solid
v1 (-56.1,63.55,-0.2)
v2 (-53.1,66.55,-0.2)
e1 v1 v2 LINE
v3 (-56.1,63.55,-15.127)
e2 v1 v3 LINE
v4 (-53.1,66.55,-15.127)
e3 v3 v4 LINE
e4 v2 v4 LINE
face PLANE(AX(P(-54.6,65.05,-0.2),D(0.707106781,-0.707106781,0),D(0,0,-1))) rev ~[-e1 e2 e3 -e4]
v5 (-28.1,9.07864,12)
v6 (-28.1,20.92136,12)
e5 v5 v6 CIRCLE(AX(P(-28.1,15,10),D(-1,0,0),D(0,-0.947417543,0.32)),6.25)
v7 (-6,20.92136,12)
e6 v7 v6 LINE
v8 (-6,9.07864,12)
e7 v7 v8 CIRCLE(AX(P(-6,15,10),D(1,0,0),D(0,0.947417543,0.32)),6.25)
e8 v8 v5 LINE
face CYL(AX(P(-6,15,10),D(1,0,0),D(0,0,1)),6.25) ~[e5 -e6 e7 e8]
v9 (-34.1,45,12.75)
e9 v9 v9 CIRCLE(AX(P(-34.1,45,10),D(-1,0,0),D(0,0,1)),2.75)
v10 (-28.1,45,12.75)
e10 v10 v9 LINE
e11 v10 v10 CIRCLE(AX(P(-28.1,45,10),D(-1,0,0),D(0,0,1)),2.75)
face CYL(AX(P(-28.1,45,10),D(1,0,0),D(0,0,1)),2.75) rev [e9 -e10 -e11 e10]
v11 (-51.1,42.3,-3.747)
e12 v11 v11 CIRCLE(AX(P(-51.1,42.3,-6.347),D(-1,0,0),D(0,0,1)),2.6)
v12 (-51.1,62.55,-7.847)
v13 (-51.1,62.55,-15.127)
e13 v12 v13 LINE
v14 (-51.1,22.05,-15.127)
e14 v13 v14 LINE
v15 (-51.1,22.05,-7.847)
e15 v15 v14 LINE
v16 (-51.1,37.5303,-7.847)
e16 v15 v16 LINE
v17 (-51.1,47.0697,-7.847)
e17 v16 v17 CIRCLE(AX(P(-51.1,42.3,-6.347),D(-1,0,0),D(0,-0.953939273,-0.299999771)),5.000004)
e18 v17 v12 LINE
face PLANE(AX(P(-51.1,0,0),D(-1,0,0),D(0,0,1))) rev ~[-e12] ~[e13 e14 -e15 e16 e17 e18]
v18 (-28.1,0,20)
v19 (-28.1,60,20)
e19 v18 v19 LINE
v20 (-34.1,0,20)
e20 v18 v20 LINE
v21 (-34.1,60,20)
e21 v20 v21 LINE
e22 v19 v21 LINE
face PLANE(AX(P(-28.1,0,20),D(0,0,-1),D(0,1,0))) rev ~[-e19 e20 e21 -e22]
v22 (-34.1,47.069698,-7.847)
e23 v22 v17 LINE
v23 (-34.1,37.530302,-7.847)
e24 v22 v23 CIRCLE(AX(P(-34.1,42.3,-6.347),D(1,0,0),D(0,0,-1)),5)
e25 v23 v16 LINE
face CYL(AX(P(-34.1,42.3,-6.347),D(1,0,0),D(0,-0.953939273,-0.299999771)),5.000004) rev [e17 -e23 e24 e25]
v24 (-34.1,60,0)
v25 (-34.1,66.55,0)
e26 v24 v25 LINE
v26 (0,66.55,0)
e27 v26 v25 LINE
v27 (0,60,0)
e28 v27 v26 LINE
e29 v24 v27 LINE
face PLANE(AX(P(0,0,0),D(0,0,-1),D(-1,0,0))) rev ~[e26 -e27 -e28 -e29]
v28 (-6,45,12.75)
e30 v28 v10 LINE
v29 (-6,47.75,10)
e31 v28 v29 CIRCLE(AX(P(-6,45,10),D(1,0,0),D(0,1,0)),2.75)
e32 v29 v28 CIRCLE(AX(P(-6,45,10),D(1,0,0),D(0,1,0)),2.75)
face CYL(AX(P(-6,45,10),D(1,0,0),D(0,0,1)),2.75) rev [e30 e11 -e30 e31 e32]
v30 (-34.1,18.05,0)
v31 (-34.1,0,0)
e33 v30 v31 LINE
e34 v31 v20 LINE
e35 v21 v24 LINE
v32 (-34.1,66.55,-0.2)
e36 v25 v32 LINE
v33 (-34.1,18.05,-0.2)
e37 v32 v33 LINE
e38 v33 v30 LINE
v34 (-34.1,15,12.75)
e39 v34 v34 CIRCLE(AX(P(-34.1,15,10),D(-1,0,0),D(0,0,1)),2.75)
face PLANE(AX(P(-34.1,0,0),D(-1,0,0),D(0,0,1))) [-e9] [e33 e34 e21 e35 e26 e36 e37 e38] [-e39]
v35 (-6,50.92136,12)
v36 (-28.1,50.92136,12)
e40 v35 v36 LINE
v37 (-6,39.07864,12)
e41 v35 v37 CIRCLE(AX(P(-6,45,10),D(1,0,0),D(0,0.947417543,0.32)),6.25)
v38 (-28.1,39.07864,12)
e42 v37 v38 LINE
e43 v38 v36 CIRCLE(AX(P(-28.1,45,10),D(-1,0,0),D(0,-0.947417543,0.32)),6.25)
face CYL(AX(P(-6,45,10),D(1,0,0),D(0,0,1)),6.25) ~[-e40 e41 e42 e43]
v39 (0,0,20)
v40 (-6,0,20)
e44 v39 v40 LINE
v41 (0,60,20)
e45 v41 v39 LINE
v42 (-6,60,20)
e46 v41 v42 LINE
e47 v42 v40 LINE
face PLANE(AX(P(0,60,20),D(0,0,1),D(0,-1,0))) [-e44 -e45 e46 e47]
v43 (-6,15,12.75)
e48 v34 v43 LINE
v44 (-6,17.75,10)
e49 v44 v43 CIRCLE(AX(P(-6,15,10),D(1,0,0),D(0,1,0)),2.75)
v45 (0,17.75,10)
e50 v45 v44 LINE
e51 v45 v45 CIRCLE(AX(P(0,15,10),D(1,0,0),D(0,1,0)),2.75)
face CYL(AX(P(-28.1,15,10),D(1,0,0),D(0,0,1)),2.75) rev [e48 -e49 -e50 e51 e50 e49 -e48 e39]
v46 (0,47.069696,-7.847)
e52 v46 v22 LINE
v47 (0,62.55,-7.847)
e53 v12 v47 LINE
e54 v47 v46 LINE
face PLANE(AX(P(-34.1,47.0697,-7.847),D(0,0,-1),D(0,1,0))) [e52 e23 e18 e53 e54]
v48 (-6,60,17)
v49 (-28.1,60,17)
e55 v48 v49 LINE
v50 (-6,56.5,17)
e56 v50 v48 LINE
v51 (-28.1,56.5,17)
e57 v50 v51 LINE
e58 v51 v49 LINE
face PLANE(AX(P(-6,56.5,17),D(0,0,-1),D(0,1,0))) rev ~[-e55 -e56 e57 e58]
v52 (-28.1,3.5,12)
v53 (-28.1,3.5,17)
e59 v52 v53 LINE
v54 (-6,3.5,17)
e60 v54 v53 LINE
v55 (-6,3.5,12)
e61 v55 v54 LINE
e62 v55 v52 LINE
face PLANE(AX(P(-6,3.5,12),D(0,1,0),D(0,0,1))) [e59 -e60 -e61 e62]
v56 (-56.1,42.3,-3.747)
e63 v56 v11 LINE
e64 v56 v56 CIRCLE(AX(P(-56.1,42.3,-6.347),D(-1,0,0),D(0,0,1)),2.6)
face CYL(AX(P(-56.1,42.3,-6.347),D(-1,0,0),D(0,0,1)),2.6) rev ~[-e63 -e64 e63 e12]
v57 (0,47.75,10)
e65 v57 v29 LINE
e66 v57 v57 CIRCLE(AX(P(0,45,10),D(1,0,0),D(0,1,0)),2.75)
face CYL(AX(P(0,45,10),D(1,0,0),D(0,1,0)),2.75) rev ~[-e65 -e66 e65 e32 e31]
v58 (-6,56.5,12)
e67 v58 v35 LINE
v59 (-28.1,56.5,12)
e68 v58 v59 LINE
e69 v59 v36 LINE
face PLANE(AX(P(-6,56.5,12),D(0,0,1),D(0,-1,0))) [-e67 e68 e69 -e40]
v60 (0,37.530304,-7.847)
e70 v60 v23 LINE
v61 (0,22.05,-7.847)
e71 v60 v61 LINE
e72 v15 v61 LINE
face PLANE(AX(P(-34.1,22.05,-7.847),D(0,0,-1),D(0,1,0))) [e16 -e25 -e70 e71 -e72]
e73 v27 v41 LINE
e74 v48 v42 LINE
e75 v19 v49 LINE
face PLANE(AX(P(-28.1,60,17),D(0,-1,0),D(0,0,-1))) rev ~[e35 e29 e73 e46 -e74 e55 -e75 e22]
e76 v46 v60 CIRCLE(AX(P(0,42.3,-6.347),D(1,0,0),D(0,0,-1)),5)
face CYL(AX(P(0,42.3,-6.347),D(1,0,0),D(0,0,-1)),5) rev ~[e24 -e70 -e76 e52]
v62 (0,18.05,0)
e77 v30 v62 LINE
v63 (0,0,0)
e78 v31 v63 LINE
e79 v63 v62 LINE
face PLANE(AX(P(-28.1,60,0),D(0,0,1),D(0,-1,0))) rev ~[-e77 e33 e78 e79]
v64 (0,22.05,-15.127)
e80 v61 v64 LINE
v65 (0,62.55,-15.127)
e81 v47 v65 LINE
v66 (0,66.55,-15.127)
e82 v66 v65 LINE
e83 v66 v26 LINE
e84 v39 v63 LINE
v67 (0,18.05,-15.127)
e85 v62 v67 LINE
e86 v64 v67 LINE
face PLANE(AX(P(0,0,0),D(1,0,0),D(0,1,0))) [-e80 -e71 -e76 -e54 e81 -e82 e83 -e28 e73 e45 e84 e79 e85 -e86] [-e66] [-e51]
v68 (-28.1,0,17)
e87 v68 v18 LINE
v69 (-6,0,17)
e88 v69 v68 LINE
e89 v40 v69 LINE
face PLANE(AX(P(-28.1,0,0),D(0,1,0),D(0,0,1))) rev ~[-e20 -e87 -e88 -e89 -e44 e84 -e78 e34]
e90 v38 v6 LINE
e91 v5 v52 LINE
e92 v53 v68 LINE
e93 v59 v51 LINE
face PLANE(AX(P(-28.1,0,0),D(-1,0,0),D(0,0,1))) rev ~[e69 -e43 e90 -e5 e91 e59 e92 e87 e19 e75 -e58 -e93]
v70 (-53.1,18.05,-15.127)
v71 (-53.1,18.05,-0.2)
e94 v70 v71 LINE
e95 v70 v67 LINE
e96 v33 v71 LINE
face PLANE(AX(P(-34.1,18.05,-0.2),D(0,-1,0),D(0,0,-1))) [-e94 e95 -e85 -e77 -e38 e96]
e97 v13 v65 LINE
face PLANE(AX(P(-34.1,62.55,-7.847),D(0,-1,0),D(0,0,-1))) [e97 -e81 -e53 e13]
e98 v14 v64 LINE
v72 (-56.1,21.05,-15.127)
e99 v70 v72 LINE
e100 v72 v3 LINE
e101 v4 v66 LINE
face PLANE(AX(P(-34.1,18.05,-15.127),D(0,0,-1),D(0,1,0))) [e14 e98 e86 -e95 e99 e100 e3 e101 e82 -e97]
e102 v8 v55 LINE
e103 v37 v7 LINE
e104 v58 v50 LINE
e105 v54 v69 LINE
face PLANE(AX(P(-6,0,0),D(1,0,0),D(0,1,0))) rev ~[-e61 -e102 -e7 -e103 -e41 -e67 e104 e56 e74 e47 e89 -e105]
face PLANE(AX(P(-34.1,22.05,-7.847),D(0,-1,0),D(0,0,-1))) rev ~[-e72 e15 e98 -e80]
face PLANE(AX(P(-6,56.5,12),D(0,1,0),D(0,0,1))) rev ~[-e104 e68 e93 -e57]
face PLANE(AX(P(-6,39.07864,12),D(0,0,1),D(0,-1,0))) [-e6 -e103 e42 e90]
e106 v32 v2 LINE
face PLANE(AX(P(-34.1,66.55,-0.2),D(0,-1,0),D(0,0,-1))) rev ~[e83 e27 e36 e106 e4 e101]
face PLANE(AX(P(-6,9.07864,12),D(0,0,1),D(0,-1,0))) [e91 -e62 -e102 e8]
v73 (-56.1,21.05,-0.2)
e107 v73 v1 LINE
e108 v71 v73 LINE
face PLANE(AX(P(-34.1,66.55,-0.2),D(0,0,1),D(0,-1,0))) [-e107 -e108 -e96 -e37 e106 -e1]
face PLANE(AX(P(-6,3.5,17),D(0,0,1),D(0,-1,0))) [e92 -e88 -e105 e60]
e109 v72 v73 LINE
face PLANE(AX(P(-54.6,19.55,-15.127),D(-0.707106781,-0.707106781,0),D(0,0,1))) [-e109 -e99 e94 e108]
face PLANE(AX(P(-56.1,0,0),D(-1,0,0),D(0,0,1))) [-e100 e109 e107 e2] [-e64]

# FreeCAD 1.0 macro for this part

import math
import FreeCAD as App
import Part
import Sketcher
from FreeCAD import Vector
Q = App.Units.Quantity


def edges_at(feature, points):
    """Names of the edges that pass closest to the given points."""
    edges = feature.Shape.Edges
    near = lambda p: min(range(len(edges)), key=lambda i: edges[i].distToShape(Part.Vertex(*p))[0])
    return sorted({f"Edge{near(p) + 1}" for p in points})

doc = App.newDocument("Part")
body = doc.addObject("PartDesign::Body", "Body")

sketch1 = body.newObject("Sketcher::SketchObject", "Sketch")
sketch1.AttachmentSupport = (doc.getObject("YZ_Plane"), [""])
sketch1.MapMode = "FlatFace"
sketch1.addGeometry([
    Part.LineSegment(Vector(0, 20, 0), Vector(0, 0, 0)),
    Part.LineSegment(Vector(0, 0, 0), Vector(60, 0, 0)),
    Part.LineSegment(Vector(60, 0, 0), Vector(60, 20, 0)),
    Part.LineSegment(Vector(60, 20, 0), Vector(0, 20, 0)),
    Part.Circle(Vector(15, 10, 0), Vector(0, 0, 1), 2.8),
    Part.Circle(Vector(45, 10, 0), Vector(0, 0, 1), 2.8),
], False)
sketch1.addConstraint([
    Sketcher.Constraint("Coincident", 0, 2, 1, 1),
    Sketcher.Constraint("Coincident", 1, 2, 2, 1),
    Sketcher.Constraint("Coincident", 2, 2, 3, 1),
    Sketcher.Constraint("Coincident", 3, 2, 0, 1),
    Sketcher.Constraint("Vertical", 0),
    Sketcher.Constraint("Horizontal", 1),
    Sketcher.Constraint("Vertical", 2),
    Sketcher.Constraint("Horizontal", 3),
    Sketcher.Constraint("Coincident", 0, 2, -1, 1),
    Sketcher.Constraint("Equal", 4, 5),
    Sketcher.Constraint("Horizontal", 4, 3, 5, 3),
    Sketcher.Constraint("Diameter", 4, Q("5.5 mm")),
    Sketcher.Constraint("DistanceX", 1, 1, 1, 2, Q("60 mm")),
    Sketcher.Constraint("DistanceY", 0, 2, 0, 1, Q("20 mm")),
    Sketcher.Constraint("DistanceX", -1, 1, 4, 3, Q("15 mm")),
    Sketcher.Constraint("DistanceY", -1, 1, 4, 3, Q("10 mm")),
    Sketcher.Constraint("DistanceX", -1, 1, 5, 3, Q("45 mm")),
])
pad1 = body.newObject("PartDesign::Pad", "Pad")
pad1.Profile = sketch1
pad1.Length = 6
pad1.Reversed = True

sketch2 = body.newObject("Sketcher::SketchObject", "Sketch001")
sketch2.AttachmentSupport = (doc.getObject("YZ_Plane"), [""])
sketch2.MapMode = "FlatFace"
sketch2.AttachmentOffset = App.Placement(Vector(0, 0, -6), App.Rotation())
sketch2.addGeometry([
    Part.LineSegment(Vector(50.9, 12, 0), Vector(56.5, 12, 0)),
    Part.LineSegment(Vector(56.5, 12, 0), Vector(56.5, 17, 0)),
    Part.LineSegment(Vector(56.5, 17, 0), Vector(60, 17, 0)),
    Part.LineSegment(Vector(60, 17, 0), Vector(60, 0, 0)),
    Part.LineSegment(Vector(60, 0, 0), Vector(0, 0, 0)),
    Part.LineSegment(Vector(0, 0, 0), Vector(0, 17, 0)),
    Part.LineSegment(Vector(0, 17, 0), Vector(3.5, 17, 0)),
    Part.LineSegment(Vector(3.5, 17, 0), Vector(3.5, 12, 0)),
    Part.LineSegment(Vector(3.5, 12, 0), Vector(9.1, 12, 0)),
    Part.ArcOfCircle(Part.Circle(Vector(15, 10, 0), Vector(0, 0, 1), 6.2), math.radians(19), math.radians(161)),
    Part.LineSegment(Vector(20.9, 12, 0), Vector(39.1, 12, 0)),
    Part.ArcOfCircle(Part.Circle(Vector(45, 10, 0), Vector(0, 0, 1), 6.2), math.radians(19), math.radians(161)),
    Part.Circle(Vector(45, 10, 0), Vector(0, 0, 1), 2.8),
    Part.Circle(Vector(15, 10, 0), Vector(0, 0, 1), 2.8),
], False)
sketch2.addConstraint([
    Sketcher.Constraint("Coincident", 0, 2, 1, 1),
    Sketcher.Constraint("Coincident", 1, 2, 2, 1),
    Sketcher.Constraint("Coincident", 2, 2, 3, 1),
    Sketcher.Constraint("Coincident", 3, 2, 4, 1),
    Sketcher.Constraint("Coincident", 4, 2, 5, 1),
    Sketcher.Constraint("Coincident", 5, 2, 6, 1),
    Sketcher.Constraint("Coincident", 6, 2, 7, 1),
    Sketcher.Constraint("Coincident", 7, 2, 8, 1),
    Sketcher.Constraint("Coincident", 8, 2, 9, 2),
    Sketcher.Constraint("Coincident", 9, 1, 10, 1),
    Sketcher.Constraint("Coincident", 10, 2, 11, 2),
    Sketcher.Constraint("Coincident", 11, 1, 0, 1),
    Sketcher.Constraint("Horizontal", 0),
    Sketcher.Constraint("Vertical", 1),
    Sketcher.Constraint("Horizontal", 2),
    Sketcher.Constraint("Vertical", 3),
    Sketcher.Constraint("Horizontal", 4),
    Sketcher.Constraint("Vertical", 5),
    Sketcher.Constraint("Horizontal", 6),
    Sketcher.Constraint("Vertical", 7),
    Sketcher.Constraint("Horizontal", 8),
    Sketcher.Constraint("Horizontal", 10),
    Sketcher.Constraint("Coincident", 4, 2, -1, 1),
    Sketcher.Constraint("Coincident", 12, 3, 11, 3),
    Sketcher.Constraint("Coincident", 13, 3, 9, 3),
    Sketcher.Constraint("Equal", 9, 11),
    Sketcher.Constraint("Equal", 12, 13),
    Sketcher.Constraint("Horizontal", 9, 3, 11, 3),
    Sketcher.Constraint("Horizontal", 2, 2, 5, 2),
    Sketcher.Constraint("Horizontal", 0, 2, 7, 2),
    Sketcher.Constraint("Horizontal", 8, 2, 9, 1),
    Sketcher.Constraint("Equal", 2, 6),
    Sketcher.Constraint("Equal", 0, 8),
    Sketcher.Constraint("DistanceX", 2, 1, 2, 2, Q("3.5 mm")),
    Sketcher.Constraint("Diameter", 12, Q("5.5 mm")),
    Sketcher.Constraint("DistanceX", 4, 2, 4, 1, Q("60 mm")),
    Sketcher.Constraint("DistanceY", 1, 1, 1, 2, Q("5 mm")),
    Sketcher.Constraint("DistanceY", 3, 2, 3, 1, Q("17 mm")),
    Sketcher.Constraint("Radius", 9, Q("6.25 mm")),
    Sketcher.Constraint("DistanceX", -1, 1, 9, 3, Q("15 mm")),
    Sketcher.Constraint("DistanceY", -1, 1, 9, 3, Q("10 mm")),
])
pad2 = body.newObject("PartDesign::Pad", "Pad001")
pad2.Profile = sketch2
pad2.Length = 22.1
pad2.Reversed = True

sketch3 = body.newObject("Sketcher::SketchObject", "Sketch002")
sketch3.AttachmentSupport = (doc.getObject("YZ_Plane"), [""])
sketch3.MapMode = "FlatFace"
sketch3.AttachmentOffset = App.Placement(Vector(0, 0, -28.1), App.Rotation())
sketch3.addGeometry([
    Part.LineSegment(Vector(0, 0, 0), Vector(0, 20, 0)),
    Part.LineSegment(Vector(0, 20, 0), Vector(60, 20, 0)),
    Part.LineSegment(Vector(60, 20, 0), Vector(60, 0, 0)),
    Part.LineSegment(Vector(60, 0, 0), Vector(0, 0, 0)),
    Part.Circle(Vector(15, 10, 0), Vector(0, 0, 1), 2.8),
    Part.Circle(Vector(45, 10, 0), Vector(0, 0, 1), 2.8),
], False)
sketch3.addConstraint([
    Sketcher.Constraint("Coincident", 0, 2, 1, 1),
    Sketcher.Constraint("Coincident", 1, 2, 2, 1),
    Sketcher.Constraint("Coincident", 2, 2, 3, 1),
    Sketcher.Constraint("Coincident", 3, 2, 0, 1),
    Sketcher.Constraint("Vertical", 0),
    Sketcher.Constraint("Horizontal", 1),
    Sketcher.Constraint("Vertical", 2),
    Sketcher.Constraint("Horizontal", 3),
    Sketcher.Constraint("Coincident", 3, 2, -1, 1),
    Sketcher.Constraint("Equal", 4, 5),
    Sketcher.Constraint("Horizontal", 4, 3, 5, 3),
    Sketcher.Constraint("Diameter", 4, Q("5.5 mm")),
    Sketcher.Constraint("DistanceX", 1, 1, 1, 2, Q("60 mm")),
    Sketcher.Constraint("DistanceY", 0, 1, 0, 2, Q("20 mm")),
    Sketcher.Constraint("DistanceX", -1, 1, 4, 3, Q("15 mm")),
    Sketcher.Constraint("DistanceY", -1, 1, 4, 3, Q("10 mm")),
    Sketcher.Constraint("DistanceX", -1, 1, 5, 3, Q("45 mm")),
])
pad3 = body.newObject("PartDesign::Pad", "Pad002")
pad3.Profile = sketch3
pad3.Length = 6
pad3.Reversed = True

sketch4 = body.newObject("Sketcher::SketchObject", "Sketch003")
sketch4.AttachmentSupport = (doc.getObject("XY_Plane"), [""])
sketch4.MapMode = "FlatFace"
sketch4.addGeometry([
    Part.LineSegment(Vector(-34, 67, 0), Vector(0, 67, 0)),
    Part.LineSegment(Vector(0, 67, 0), Vector(0, 18, 0)),
    Part.LineSegment(Vector(0, 18, 0), Vector(-34, 18, 0)),
    Part.LineSegment(Vector(-34, 18, 0), Vector(-34, 67, 0)),
], False)
sketch4.addConstraint([
    Sketcher.Constraint("Coincident", 0, 2, 1, 1),
    Sketcher.Constraint("Coincident", 1, 2, 2, 1),
    Sketcher.Constraint("Coincident", 2, 2, 3, 1),
    Sketcher.Constraint("Coincident", 3, 2, 0, 1),
    Sketcher.Constraint("Horizontal", 0),
    Sketcher.Constraint("Vertical", 1),
    Sketcher.Constraint("Horizontal", 2),
    Sketcher.Constraint("Vertical", 3),
    Sketcher.Constraint("PointOnObject", 0, 2, -2),
    Sketcher.Constraint("DistanceX", 0, 1, 0, 2, Q("34.1 mm")),
    Sketcher.Constraint("DistanceY", 1, 2, 1, 1, Q("48.5 mm")),
    Sketcher.Constraint("DistanceY", -1, 1, 0, 2, Q("66.55 mm")),
])
pad4 = body.newObject("PartDesign::Pad", "Pad003")
pad4.Profile = sketch4
pad4.Length = 7.847
pad4.Reversed = True

sketch5 = body.newObject("Sketcher::SketchObject", "Sketch004")
sketch5.AttachmentSupport = (doc.getObject("XY_Plane"), [""])
sketch5.MapMode = "FlatFace"
sketch5.AttachmentOffset = App.Placement(Vector(0, 0, -7.847), App.Rotation())
sketch5.addGeometry([
    Part.LineSegment(Vector(0, 18.1, 0), Vector(-34.1, 18.1, 0)),
    Part.LineSegment(Vector(-34.1, 18.1, 0), Vector(-34.1, 22.1, 0)),
    Part.LineSegment(Vector(-34.1, 22.1, 0), Vector(0, 22.1, 0)),
    Part.LineSegment(Vector(0, 22.1, 0), Vector(0, 18.1, 0)),
    Part.LineSegment(Vector(0, 62.5, 0), Vector(-34.1, 62.5, 0)),
    Part.LineSegment(Vector(-34.1, 62.5, 0), Vector(-34.1, 66.5, 0)),
    Part.LineSegment(Vector(-34.1, 66.5, 0), Vector(0, 66.5, 0)),
    Part.LineSegment(Vector(0, 66.5, 0), Vector(0, 62.5, 0)),
], False)
sketch5.addConstraint([
    Sketcher.Constraint("Coincident", 0, 2, 1, 1),
    Sketcher.Constraint("Coincident", 1, 2, 2, 1),
    Sketcher.Constraint("Coincident", 2, 2, 3, 1),
    Sketcher.Constraint("Coincident", 3, 2, 0, 1),
    Sketcher.Constraint("Coincident", 4, 2, 5, 1),
    Sketcher.Constraint("Coincident", 5, 2, 6, 1),
    Sketcher.Constraint("Coincident", 6, 2, 7, 1),
    Sketcher.Constraint("Coincident", 7, 2, 4, 1),
    Sketcher.Constraint("Horizontal", 0),
    Sketcher.Constraint("Vertical", 1),
    Sketcher.Constraint("Horizontal", 2),
    Sketcher.Constraint("Vertical", 3),
    Sketcher.Constraint("Horizontal", 4),
    Sketcher.Constraint("Vertical", 5),
    Sketcher.Constraint("Horizontal", 6),
    Sketcher.Constraint("Vertical", 7),
    Sketcher.Constraint("PointOnObject", 2, 2, -2),
    Sketcher.Constraint("PointOnObject", 6, 2, -2),
    Sketcher.Constraint("Vertical", 1, 2, 4, 2),
    Sketcher.Constraint("Equal", 3, 5),
    Sketcher.Constraint("DistanceY", 1, 1, 1, 2, Q("4 mm")),
    Sketcher.Constraint("DistanceY", 1, 2, 4, 2, Q("40.5 mm")),
    Sketcher.Constraint("DistanceX", 0, 2, 0, 1, Q("34.1 mm")),
    Sketcher.Constraint("DistanceY", -1, 1, 0, 2, Q("18.05 mm")),
])
pad5 = body.newObject("PartDesign::Pad", "Pad004")
pad5.Profile = sketch5
pad5.Length = 7.28
pad5.Reversed = True

sketch6 = body.newObject("Sketcher::SketchObject", "Sketch005")
sketch6.AttachmentSupport = (doc.getObject("YZ_Plane"), [""])
sketch6.MapMode = "FlatFace"
sketch6.addGeometry([
    Part.ArcOfCircle(Part.Circle(Vector(42, -6, 0), Vector(0, 0, 1), 5), math.radians(-17), math.radians(197)),
    Part.LineSegment(Vector(38, -8, 0), Vector(47, -8, 0)),
], False)
sketch6.addConstraint([
    Sketcher.Constraint("Coincident", 0, 1, 1, 2),
    Sketcher.Constraint("Coincident", 1, 1, 0, 2),
    Sketcher.Constraint("Horizontal", 1),
    Sketcher.Constraint("Radius", 0, Q("5 mm")),
    Sketcher.Constraint("DistanceX", -1, 1, 0, 3, Q("42.3 mm")),
    Sketcher.Constraint("DistanceY", 0, 1, 0, 3, Q("1.5 mm")),
    Sketcher.Constraint("DistanceY", 0, 3, -1, 1, Q("6.347 mm")),
])
pocket1 = body.newObject("PartDesign::Pocket", "Pocket")
pocket1.Profile = sketch6
pocket1.Type = "ThroughAll"

sketch7 = body.newObject("Sketcher::SketchObject", "Sketch006")
sketch7.AttachmentSupport = (doc.getObject("YZ_Plane"), [""])
sketch7.MapMode = "FlatFace"
sketch7.AttachmentOffset = App.Placement(Vector(0, 0, -34.1), App.Rotation())
sketch7.addGeometry([
    Part.LineSegment(Vector(18.1, -15.1, 0), Vector(18.1, -0.2, 0)),
    Part.LineSegment(Vector(18.1, -0.2, 0), Vector(66.5, -0.2, 0)),
    Part.LineSegment(Vector(66.5, -0.2, 0), Vector(66.5, -15.1, 0)),
    Part.LineSegment(Vector(66.5, -15.1, 0), Vector(62.5, -15.1, 0)),
    Part.LineSegment(Vector(62.5, -15.1, 0), Vector(62.5, -7.8, 0)),
    Part.LineSegment(Vector(62.5, -7.8, 0), Vector(47.1, -7.8, 0)),
    Part.ArcOfCircle(Part.Circle(Vector(42.3, -6.3, 0), Vector(0, 0, 1), 5), math.radians(-17), math.radians(197)),
    Part.LineSegment(Vector(37.5, -7.8, 0), Vector(22.1, -7.8, 0)),
    Part.LineSegment(Vector(22.1, -7.8, 0), Vector(22.1, -15.1, 0)),
    Part.LineSegment(Vector(22.1, -15.1, 0), Vector(18.1, -15.1, 0)),
], False)
sketch7.addConstraint([
    Sketcher.Constraint("Coincident", 0, 2, 1, 1),
    Sketcher.Constraint("Coincident", 1, 2, 2, 1),
    Sketcher.Constraint("Coincident", 2, 2, 3, 1),
    Sketcher.Constraint("Coincident", 3, 2, 4, 1),
    Sketcher.Constraint("Coincident", 4, 2, 5, 1),
    Sketcher.Constraint("Coincident", 5, 2, 6, 1),
    Sketcher.Constraint("Coincident", 6, 2, 7, 1),
    Sketcher.Constraint("Coincident", 7, 2, 8, 1),
    Sketcher.Constraint("Coincident", 8, 2, 9, 1),
    Sketcher.Constraint("Coincident", 9, 2, 0, 1),
    Sketcher.Constraint("Vertical", 0),
    Sketcher.Constraint("Horizontal", 1),
    Sketcher.Constraint("Vertical", 2),
    Sketcher.Constraint("Horizontal", 3),
    Sketcher.Constraint("Vertical", 4),
    Sketcher.Constraint("Horizontal", 5),
    Sketcher.Constraint("Horizontal", 7),
    Sketcher.Constraint("Vertical", 8),
    Sketcher.Constraint("Horizontal", 9),
    Sketcher.Constraint("Horizontal", 5, 2, 6, 2),
    Sketcher.Constraint("Horizontal", 3, 2, 8, 2),
    Sketcher.Constraint("Equal", 5, 7),
    Sketcher.Constraint("Equal", 3, 9),
    Sketcher.Constraint("Radius", 6, Q("5 mm")),
    Sketcher.Constraint("DistanceY", 0, 2, -1, 1, Q("0.2 mm")),
    Sketcher.Constraint("DistanceX", 3, 2, 3, 1, Q("4 mm")),
    Sketcher.Constraint("DistanceX", 1, 1, 1, 2, Q("48.5 mm")),
    Sketcher.Constraint("DistanceY", 4, 1, 4, 2, Q("7.28 mm")),
    Sketcher.Constraint("DistanceX", -1, 1, 6, 3, Q("42.3 mm")),
    Sketcher.Constraint("DistanceY", 4, 2, 6, 3, Q("1.5 mm")),
    Sketcher.Constraint("DistanceY", 0, 1, 0, 2, Q("14.927 mm")),
])
pad6 = body.newObject("PartDesign::Pad", "Pad005")
pad6.Profile = sketch7
pad6.Length = 17
pad6.Reversed = True

sketch8 = body.newObject("Sketcher::SketchObject", "Sketch007")
sketch8.AttachmentSupport = (doc.getObject("YZ_Plane"), [""])
sketch8.MapMode = "FlatFace"
sketch8.AttachmentOffset = App.Placement(Vector(0, 0, -51.1), App.Rotation())
sketch8.addGeometry([
    Part.LineSegment(Vector(67, -15, 0), Vector(18, -15, 0)),
    Part.LineSegment(Vector(18, -15, 0), Vector(18, 0, 0)),
    Part.LineSegment(Vector(18, 0, 0), Vector(67, 0, 0)),
    Part.LineSegment(Vector(67, 0, 0), Vector(67, -15, 0)),
], False)
sketch8.addConstraint([
    Sketcher.Constraint("Coincident", 0, 2, 1, 1),
    Sketcher.Constraint("Coincident", 1, 2, 2, 1),
    Sketcher.Constraint("Coincident", 2, 2, 3, 1),
    Sketcher.Constraint("Coincident", 3, 2, 0, 1),
    Sketcher.Constraint("Horizontal", 0),
    Sketcher.Constraint("Vertical", 1),
    Sketcher.Constraint("Horizontal", 2),
    Sketcher.Constraint("Vertical", 3),
    Sketcher.Constraint("DistanceX", 0, 2, 0, 1, Q("48.5 mm")),
    Sketcher.Constraint("DistanceY", 1, 2, -1, 1, Q("0.2 mm")),
    Sketcher.Constraint("DistanceY", 1, 1, 1, 2, Q("14.927 mm")),
    Sketcher.Constraint("DistanceX", -1, 1, 0, 2, Q("18.05 mm")),
])
pad7 = body.newObject("PartDesign::Pad", "Pad006")
pad7.Profile = sketch8
pad7.Length = 5
pad7.Reversed = True

sketch9 = body.newObject("Sketcher::SketchObject", "Sketch008")
sketch9.AttachmentSupport = (doc.getObject("YZ_Plane"), [""])
sketch9.MapMode = "FlatFace"
sketch9.AttachmentOffset = App.Placement(Vector(0, 0, -56.1), App.Rotation())
sketch9.addGeometry(Part.Circle(Vector(42.3, -6.3, 0), Vector(0, 0, 1), 2.6), False)
sketch9.addConstraint([
    Sketcher.Constraint("Diameter", 0, Q("5.2 mm")),
    Sketcher.Constraint("DistanceX", -1, 1, 0, 3, Q("42.3 mm")),
    Sketcher.Constraint("DistanceY", 0, 3, -1, 1, Q("6.347 mm")),
])
pocket2 = body.newObject("PartDesign::Pocket", "Pocket001")
pocket2.Profile = sketch9
pocket2.Type = "UpToFirst"
pocket2.Reversed = True
doc.recompute()

chamfer = body.newObject("PartDesign::Chamfer", "Chamfer")
chamfer.Base = (pocket2, edges_at(pocket2, [(-56.1, 66.55, -7.663), (-56.1, 18.05, -7.663)]))
chamfer.Size = 3

doc.recompute()
